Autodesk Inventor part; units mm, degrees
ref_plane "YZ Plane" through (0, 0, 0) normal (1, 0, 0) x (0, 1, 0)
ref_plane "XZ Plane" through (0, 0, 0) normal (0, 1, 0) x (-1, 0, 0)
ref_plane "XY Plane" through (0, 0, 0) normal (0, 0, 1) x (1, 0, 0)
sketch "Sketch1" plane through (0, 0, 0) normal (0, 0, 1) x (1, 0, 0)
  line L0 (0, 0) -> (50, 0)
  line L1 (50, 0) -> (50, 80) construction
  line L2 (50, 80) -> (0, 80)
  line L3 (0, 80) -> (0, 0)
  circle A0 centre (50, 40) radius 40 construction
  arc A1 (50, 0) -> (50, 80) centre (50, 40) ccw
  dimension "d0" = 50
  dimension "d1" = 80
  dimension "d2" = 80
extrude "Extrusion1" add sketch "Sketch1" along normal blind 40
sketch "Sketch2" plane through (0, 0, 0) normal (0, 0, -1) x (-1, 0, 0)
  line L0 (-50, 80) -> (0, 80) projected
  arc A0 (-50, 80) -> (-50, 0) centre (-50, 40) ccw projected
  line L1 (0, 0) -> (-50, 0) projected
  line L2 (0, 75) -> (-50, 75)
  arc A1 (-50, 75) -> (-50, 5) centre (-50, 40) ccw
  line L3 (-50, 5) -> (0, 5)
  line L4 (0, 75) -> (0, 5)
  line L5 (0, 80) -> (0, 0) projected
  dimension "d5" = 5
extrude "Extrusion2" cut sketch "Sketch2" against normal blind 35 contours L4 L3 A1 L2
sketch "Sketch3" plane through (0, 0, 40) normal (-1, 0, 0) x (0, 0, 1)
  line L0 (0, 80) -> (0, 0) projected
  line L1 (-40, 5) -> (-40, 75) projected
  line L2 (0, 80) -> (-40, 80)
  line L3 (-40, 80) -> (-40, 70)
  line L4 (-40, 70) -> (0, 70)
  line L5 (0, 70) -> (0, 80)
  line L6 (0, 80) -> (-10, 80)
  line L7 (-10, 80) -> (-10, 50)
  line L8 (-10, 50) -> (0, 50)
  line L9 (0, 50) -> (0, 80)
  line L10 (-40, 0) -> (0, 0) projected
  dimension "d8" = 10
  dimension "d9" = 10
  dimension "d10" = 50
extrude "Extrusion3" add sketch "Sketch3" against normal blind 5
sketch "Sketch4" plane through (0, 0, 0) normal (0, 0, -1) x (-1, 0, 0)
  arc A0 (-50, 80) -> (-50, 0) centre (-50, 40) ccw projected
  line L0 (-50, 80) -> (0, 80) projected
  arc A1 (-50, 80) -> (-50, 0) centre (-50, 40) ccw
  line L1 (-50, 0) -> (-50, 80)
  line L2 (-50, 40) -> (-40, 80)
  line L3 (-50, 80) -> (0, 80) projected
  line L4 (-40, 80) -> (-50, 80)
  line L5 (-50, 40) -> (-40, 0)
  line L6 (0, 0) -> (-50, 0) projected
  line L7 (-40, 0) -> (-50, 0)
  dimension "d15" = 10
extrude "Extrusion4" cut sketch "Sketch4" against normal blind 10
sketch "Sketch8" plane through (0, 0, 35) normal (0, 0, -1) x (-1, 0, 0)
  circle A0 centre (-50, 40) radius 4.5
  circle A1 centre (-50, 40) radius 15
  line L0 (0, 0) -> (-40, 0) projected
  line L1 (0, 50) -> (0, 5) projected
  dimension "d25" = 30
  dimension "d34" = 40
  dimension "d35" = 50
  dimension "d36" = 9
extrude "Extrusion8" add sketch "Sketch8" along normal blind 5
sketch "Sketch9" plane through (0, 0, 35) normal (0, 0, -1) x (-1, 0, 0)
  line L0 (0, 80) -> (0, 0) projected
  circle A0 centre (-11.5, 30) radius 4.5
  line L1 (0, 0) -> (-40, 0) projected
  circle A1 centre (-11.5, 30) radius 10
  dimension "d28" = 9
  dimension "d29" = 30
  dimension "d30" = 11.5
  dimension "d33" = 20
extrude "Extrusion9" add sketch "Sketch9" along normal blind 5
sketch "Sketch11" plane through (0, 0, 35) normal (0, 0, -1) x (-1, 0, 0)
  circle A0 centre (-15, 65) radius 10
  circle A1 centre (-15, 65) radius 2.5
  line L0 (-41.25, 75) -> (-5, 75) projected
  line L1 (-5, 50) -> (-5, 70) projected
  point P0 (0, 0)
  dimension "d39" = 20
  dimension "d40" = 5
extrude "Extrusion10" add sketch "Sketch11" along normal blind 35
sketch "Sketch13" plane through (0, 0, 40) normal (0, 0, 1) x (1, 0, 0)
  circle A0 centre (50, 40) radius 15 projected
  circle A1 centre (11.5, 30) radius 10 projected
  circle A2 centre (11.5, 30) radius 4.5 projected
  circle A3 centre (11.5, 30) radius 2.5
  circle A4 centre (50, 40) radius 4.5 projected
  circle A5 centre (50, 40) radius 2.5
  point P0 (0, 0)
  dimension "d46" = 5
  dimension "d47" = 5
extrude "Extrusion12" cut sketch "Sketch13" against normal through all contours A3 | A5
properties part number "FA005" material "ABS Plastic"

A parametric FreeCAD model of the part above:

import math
import FreeCAD as App
import Part
import Sketcher
from FreeCAD import Vector
Q = App.Units.Quantity


def add_polygon(sketch, points):
    """Adds a closed chain of lines whose ends are joined by coincident constraints."""
    first, n = sketch.GeometryCount, len(points)
    for a, b in zip(points, points[1:] + points[:1]):
        sketch.addGeometry(Part.LineSegment(App.Vector(*a, 0), App.Vector(*b, 0)), False)
    for i in range(n):
        sketch.addConstraint(Sketcher.Constraint("Coincident", first + i, 2, first + (i + 1) % n, 1))

doc = App.newDocument("Part")
body = doc.addObject("PartDesign::Body", "Body")

sketch1 = body.newObject("Sketcher::SketchObject", "Sketch")
sketch1.AttachmentSupport = (doc.getObject("XY_Plane"), [""])
sketch1.MapMode = "FlatFace"
sketch1.addGeometry(Part.LineSegment(Vector(0, 80, 0), Vector(0, 0, 0)), False)
sketch1.addGeometry(Part.LineSegment(Vector(0, 0, 0), Vector(50, 0, 0)), False)
sketch1.addGeometry(Part.ArcOfCircle(Part.Circle(Vector(50, 40, 0), Vector(0, 0, 1), 40), math.radians(-90), math.radians(90)), False)
sketch1.addGeometry(Part.LineSegment(Vector(50, 80, 0), Vector(0, 80, 0)), False)
sketch1.addConstraint(Sketcher.Constraint("Coincident", 0, 2, 1, 1))
sketch1.addConstraint(Sketcher.Constraint("Tangent", 1, 2, 2, 1))
sketch1.addConstraint(Sketcher.Constraint("Tangent", 2, 2, 3, 1))
sketch1.addConstraint(Sketcher.Constraint("Coincident", 3, 2, 0, 1))
sketch1.addConstraint(Sketcher.Constraint("Vertical", 0))
sketch1.addConstraint(Sketcher.Constraint("Horizontal", 1))
sketch1.addConstraint(Sketcher.Constraint("Horizontal", 3))
sketch1.addConstraint(Sketcher.Constraint("Coincident", 0, 2, -1, 1))
sketch1.addConstraint(Sketcher.Constraint("Radius", 2, Q("40 mm")))
sketch1.addConstraint(Sketcher.Constraint("DistanceX", 1, 1, 1, 2, Q("50 mm")))
pad1 = body.newObject("PartDesign::Pad", "Pad")
pad1.Profile = sketch1
pad1.Length = 40

sketch2 = body.newObject("Sketcher::SketchObject", "Sketch001")
sketch2.AttachmentSupport = (doc.getObject("XY_Plane"), [""])
sketch2.MapMode = "FlatFace"
sketch2.addGeometry(Part.LineSegment(Vector(0, 5, 0), Vector(0, 75, 0)), False)
sketch2.addGeometry(Part.LineSegment(Vector(0, 75, 0), Vector(50, 75, 0)), False)
sketch2.addGeometry(Part.ArcOfCircle(Part.Circle(Vector(50, 40, 0), Vector(0, 0, 1), 35), math.radians(-90), math.radians(90)), False)
sketch2.addGeometry(Part.LineSegment(Vector(50, 5, 0), Vector(0, 5, 0)), False)
sketch2.addConstraint(Sketcher.Constraint("Coincident", 0, 2, 1, 1))
sketch2.addConstraint(Sketcher.Constraint("Tangent", 1, 2, 2, 2))
sketch2.addConstraint(Sketcher.Constraint("Tangent", 2, 1, 3, 1))
sketch2.addConstraint(Sketcher.Constraint("Coincident", 3, 2, 0, 1))
sketch2.addConstraint(Sketcher.Constraint("Vertical", 0))
sketch2.addConstraint(Sketcher.Constraint("Horizontal", 1))
sketch2.addConstraint(Sketcher.Constraint("Horizontal", 3))
sketch2.addConstraint(Sketcher.Constraint("PointOnObject", 0, 2, -2))
sketch2.addConstraint(Sketcher.Constraint("DistanceY", -1, 1, 2, 1, Q("5 mm")))
sketch2.addConstraint(Sketcher.Constraint("Radius", 2, Q("35 mm")))
sketch2.addConstraint(Sketcher.Constraint("DistanceX", 1, 1, 1, 2, Q("50 mm")))
pocket1 = body.newObject("PartDesign::Pocket", "Pocket")
pocket1.Profile = sketch2
pocket1.Length = 35
pocket1.Reversed = True

sketch3 = body.newObject("Sketcher::SketchObject", "Sketch002")
sketch3.AttachmentSupport = (doc.getObject("YZ_Plane"), [""])
sketch3.MapMode = "FlatFace"
add_polygon(sketch3, [(80, 40), (80, 0), (70, 0), (70, 30), (50, 30), (50, 40)])
sketch3.addConstraint(Sketcher.Constraint("Vertical", 0))
sketch3.addConstraint(Sketcher.Constraint("Horizontal", 1))
sketch3.addConstraint(Sketcher.Constraint("Vertical", 2))
sketch3.addConstraint(Sketcher.Constraint("Horizontal", 3))
sketch3.addConstraint(Sketcher.Constraint("Vertical", 4))
sketch3.addConstraint(Sketcher.Constraint("Horizontal", 5))
sketch3.addConstraint(Sketcher.Constraint("PointOnObject", 0, 2, -1))
sketch3.addConstraint(Sketcher.Constraint("Equal", 5, 2))
sketch3.addConstraint(Sketcher.Constraint("Equal", 1, 4))
sketch3.addConstraint(Sketcher.Constraint("DistanceX", 1, 2, 1, 1, Q("10 mm")))
sketch3.addConstraint(Sketcher.Constraint("DistanceX", -1, 1, 3, 2, Q("50 mm")))
sketch3.addConstraint(Sketcher.Constraint("DistanceX", 3, 2, 3, 1, Q("20 mm")))
pad2 = body.newObject("PartDesign::Pad", "Pad001")
pad2.Profile = sketch3
pad2.Length = 5

sketch4 = body.newObject("Sketcher::SketchObject", "Sketch003")
sketch4.AttachmentSupport = (doc.getObject("XY_Plane"), [""])
sketch4.MapMode = "FlatFace"
sketch4.addGeometry(Part.ArcOfCircle(Part.Circle(Vector(50, 40, 0), Vector(0, 0, 1), 40), math.radians(-90), math.radians(90)), False)
sketch4.addGeometry(Part.LineSegment(Vector(50, 0, 0), Vector(40, 0, 0)), False)
sketch4.addGeometry(Part.LineSegment(Vector(40, 0, 0), Vector(50, 40, 0)), False)
sketch4.addGeometry(Part.LineSegment(Vector(50, 40, 0), Vector(40, 80, 0)), False)
sketch4.addGeometry(Part.LineSegment(Vector(40, 80, 0), Vector(50, 80, 0)), False)
sketch4.addConstraint(Sketcher.Constraint("Tangent", 0, 1, 1, 1))
sketch4.addConstraint(Sketcher.Constraint("Coincident", 1, 2, 2, 1))
sketch4.addConstraint(Sketcher.Constraint("Coincident", 2, 2, 3, 1))
sketch4.addConstraint(Sketcher.Constraint("Coincident", 3, 2, 4, 1))
sketch4.addConstraint(Sketcher.Constraint("Tangent", 4, 2, 0, 2))
sketch4.addConstraint(Sketcher.Constraint("Horizontal", 1))
sketch4.addConstraint(Sketcher.Constraint("Horizontal", 4))
sketch4.addConstraint(Sketcher.Constraint("Coincident", 2, 2, 0, 3))
sketch4.addConstraint(Sketcher.Constraint("PointOnObject", 0, 1, -1))
sketch4.addConstraint(Sketcher.Constraint("Vertical", 1, 2, 3, 2))
sketch4.addConstraint(Sketcher.Constraint("DistanceX", 1, 2, 1, 1, Q("10 mm")))
sketch4.addConstraint(Sketcher.Constraint("Radius", 0, Q("40 mm")))
sketch4.addConstraint(Sketcher.Constraint("DistanceX", -1, 1, 0, 3, Q("50 mm")))
pocket2 = body.newObject("PartDesign::Pocket", "Pocket001")
pocket2.Profile = sketch4
pocket2.Length = 10
pocket2.Reversed = True

sketch5 = body.newObject("Sketcher::SketchObject", "Sketch004")
sketch5.AttachmentSupport = (doc.getObject("XY_Plane"), [""])
sketch5.MapMode = "FlatFace"
sketch5.AttachmentOffset = App.Placement(Vector(0, 0, 35), App.Rotation())
sketch5.addGeometry(Part.Circle(Vector(50, 40, 0), Vector(0, 0, 1), 15), False)
sketch5.addGeometry(Part.Circle(Vector(50, 40, 0), Vector(0, 0, 1), 4.5), False)
sketch5.addConstraint(Sketcher.Constraint("Coincident", 1, 3, 0, 3))
sketch5.addConstraint(Sketcher.Constraint("Diameter", 0, Q("30 mm")))
sketch5.addConstraint(Sketcher.Constraint("Diameter", 1, Q("9 mm")))
sketch5.addConstraint(Sketcher.Constraint("DistanceX", -1, 1, 0, 3, Q("50 mm")))
sketch5.addConstraint(Sketcher.Constraint("DistanceY", -1, 1, 0, 3, Q("40 mm")))
pad3 = body.newObject("PartDesign::Pad", "Pad002")
pad3.Profile = sketch5
pad3.Length = 5
pad3.Reversed = True

sketch6 = body.newObject("Sketcher::SketchObject", "Sketch005")
sketch6.AttachmentSupport = (doc.getObject("XY_Plane"), [""])
sketch6.MapMode = "FlatFace"
sketch6.AttachmentOffset = App.Placement(Vector(0, 0, 35), App.Rotation())
sketch6.addGeometry(Part.Circle(Vector(11.5, 30, 0), Vector(0, 0, 1), 10), False)
sketch6.addGeometry(Part.Circle(Vector(11.5, 30, 0), Vector(0, 0, 1), 4.5), False)
sketch6.addConstraint(Sketcher.Constraint("Coincident", 1, 3, 0, 3))
sketch6.addConstraint(Sketcher.Constraint("Diameter", 0, Q("20 mm")))
sketch6.addConstraint(Sketcher.Constraint("Diameter", 1, Q("9 mm")))
sketch6.addConstraint(Sketcher.Constraint("DistanceY", -1, 1, 0, 3, Q("30 mm")))
sketch6.addConstraint(Sketcher.Constraint("DistanceX", -1, 1, 0, 3, Q("11.5 mm")))
pad4 = body.newObject("PartDesign::Pad", "Pad003")
pad4.Profile = sketch6
pad4.Length = 5
pad4.Reversed = True

sketch7 = body.newObject("Sketcher::SketchObject", "Sketch006")
sketch7.AttachmentSupport = (doc.getObject("XY_Plane"), [""])
sketch7.MapMode = "FlatFace"
sketch7.AttachmentOffset = App.Placement(Vector(0, 0, 35), App.Rotation())
sketch7.addGeometry(Part.Circle(Vector(15, 65, 0), Vector(0, 0, 1), 10), False)
sketch7.addGeometry(Part.Circle(Vector(15, 65, 0), Vector(0, 0, 1), 2.5), False)
sketch7.addConstraint(Sketcher.Constraint("Coincident", 1, 3, 0, 3))
sketch7.addConstraint(Sketcher.Constraint("Diameter", 0, Q("20 mm")))
sketch7.addConstraint(Sketcher.Constraint("Diameter", 1, Q("5 mm")))
sketch7.addConstraint(Sketcher.Constraint("DistanceX", -1, 1, 0, 3, Q("15 mm")))
sketch7.addConstraint(Sketcher.Constraint("DistanceY", -1, 1, 0, 3, Q("65 mm")))
pad5 = body.newObject("PartDesign::Pad", "Pad004")
pad5.Profile = sketch7
pad5.Length = 35
pad5.Reversed = True

sketch8 = body.newObject("Sketcher::SketchObject", "Sketch007")
sketch8.AttachmentSupport = (doc.getObject("XY_Plane"), [""])
sketch8.MapMode = "FlatFace"
sketch8.AttachmentOffset = App.Placement(Vector(0, 0, 40), App.Rotation())
sketch8.addGeometry(Part.Circle(Vector(11.5, 30, 0), Vector(0, 0, 1), 2.5), False)
sketch8.addGeometry(Part.Circle(Vector(50, 40, 0), Vector(0, 0, 1), 2.5), False)
sketch8.addConstraint(Sketcher.Constraint("Equal", 0, 1))
sketch8.addConstraint(Sketcher.Constraint("Diameter", 0, Q("5 mm")))
sketch8.addConstraint(Sketcher.Constraint("DistanceY", -1, 1, 0, 3, Q("30 mm")))
sketch8.addConstraint(Sketcher.Constraint("DistanceX", -1, 1, 1, 3, Q("50 mm")))
sketch8.addConstraint(Sketcher.Constraint("DistanceY", -1, 1, 1, 3, Q("40 mm")))
sketch8.addConstraint(Sketcher.Constraint("DistanceX", -1, 1, 0, 3, Q("11.5 mm")))
pocket3 = body.newObject("PartDesign::Pocket", "Pocket002")
pocket3.Profile = sketch8
pocket3.Type = "ThroughAll"

doc.recompute()
